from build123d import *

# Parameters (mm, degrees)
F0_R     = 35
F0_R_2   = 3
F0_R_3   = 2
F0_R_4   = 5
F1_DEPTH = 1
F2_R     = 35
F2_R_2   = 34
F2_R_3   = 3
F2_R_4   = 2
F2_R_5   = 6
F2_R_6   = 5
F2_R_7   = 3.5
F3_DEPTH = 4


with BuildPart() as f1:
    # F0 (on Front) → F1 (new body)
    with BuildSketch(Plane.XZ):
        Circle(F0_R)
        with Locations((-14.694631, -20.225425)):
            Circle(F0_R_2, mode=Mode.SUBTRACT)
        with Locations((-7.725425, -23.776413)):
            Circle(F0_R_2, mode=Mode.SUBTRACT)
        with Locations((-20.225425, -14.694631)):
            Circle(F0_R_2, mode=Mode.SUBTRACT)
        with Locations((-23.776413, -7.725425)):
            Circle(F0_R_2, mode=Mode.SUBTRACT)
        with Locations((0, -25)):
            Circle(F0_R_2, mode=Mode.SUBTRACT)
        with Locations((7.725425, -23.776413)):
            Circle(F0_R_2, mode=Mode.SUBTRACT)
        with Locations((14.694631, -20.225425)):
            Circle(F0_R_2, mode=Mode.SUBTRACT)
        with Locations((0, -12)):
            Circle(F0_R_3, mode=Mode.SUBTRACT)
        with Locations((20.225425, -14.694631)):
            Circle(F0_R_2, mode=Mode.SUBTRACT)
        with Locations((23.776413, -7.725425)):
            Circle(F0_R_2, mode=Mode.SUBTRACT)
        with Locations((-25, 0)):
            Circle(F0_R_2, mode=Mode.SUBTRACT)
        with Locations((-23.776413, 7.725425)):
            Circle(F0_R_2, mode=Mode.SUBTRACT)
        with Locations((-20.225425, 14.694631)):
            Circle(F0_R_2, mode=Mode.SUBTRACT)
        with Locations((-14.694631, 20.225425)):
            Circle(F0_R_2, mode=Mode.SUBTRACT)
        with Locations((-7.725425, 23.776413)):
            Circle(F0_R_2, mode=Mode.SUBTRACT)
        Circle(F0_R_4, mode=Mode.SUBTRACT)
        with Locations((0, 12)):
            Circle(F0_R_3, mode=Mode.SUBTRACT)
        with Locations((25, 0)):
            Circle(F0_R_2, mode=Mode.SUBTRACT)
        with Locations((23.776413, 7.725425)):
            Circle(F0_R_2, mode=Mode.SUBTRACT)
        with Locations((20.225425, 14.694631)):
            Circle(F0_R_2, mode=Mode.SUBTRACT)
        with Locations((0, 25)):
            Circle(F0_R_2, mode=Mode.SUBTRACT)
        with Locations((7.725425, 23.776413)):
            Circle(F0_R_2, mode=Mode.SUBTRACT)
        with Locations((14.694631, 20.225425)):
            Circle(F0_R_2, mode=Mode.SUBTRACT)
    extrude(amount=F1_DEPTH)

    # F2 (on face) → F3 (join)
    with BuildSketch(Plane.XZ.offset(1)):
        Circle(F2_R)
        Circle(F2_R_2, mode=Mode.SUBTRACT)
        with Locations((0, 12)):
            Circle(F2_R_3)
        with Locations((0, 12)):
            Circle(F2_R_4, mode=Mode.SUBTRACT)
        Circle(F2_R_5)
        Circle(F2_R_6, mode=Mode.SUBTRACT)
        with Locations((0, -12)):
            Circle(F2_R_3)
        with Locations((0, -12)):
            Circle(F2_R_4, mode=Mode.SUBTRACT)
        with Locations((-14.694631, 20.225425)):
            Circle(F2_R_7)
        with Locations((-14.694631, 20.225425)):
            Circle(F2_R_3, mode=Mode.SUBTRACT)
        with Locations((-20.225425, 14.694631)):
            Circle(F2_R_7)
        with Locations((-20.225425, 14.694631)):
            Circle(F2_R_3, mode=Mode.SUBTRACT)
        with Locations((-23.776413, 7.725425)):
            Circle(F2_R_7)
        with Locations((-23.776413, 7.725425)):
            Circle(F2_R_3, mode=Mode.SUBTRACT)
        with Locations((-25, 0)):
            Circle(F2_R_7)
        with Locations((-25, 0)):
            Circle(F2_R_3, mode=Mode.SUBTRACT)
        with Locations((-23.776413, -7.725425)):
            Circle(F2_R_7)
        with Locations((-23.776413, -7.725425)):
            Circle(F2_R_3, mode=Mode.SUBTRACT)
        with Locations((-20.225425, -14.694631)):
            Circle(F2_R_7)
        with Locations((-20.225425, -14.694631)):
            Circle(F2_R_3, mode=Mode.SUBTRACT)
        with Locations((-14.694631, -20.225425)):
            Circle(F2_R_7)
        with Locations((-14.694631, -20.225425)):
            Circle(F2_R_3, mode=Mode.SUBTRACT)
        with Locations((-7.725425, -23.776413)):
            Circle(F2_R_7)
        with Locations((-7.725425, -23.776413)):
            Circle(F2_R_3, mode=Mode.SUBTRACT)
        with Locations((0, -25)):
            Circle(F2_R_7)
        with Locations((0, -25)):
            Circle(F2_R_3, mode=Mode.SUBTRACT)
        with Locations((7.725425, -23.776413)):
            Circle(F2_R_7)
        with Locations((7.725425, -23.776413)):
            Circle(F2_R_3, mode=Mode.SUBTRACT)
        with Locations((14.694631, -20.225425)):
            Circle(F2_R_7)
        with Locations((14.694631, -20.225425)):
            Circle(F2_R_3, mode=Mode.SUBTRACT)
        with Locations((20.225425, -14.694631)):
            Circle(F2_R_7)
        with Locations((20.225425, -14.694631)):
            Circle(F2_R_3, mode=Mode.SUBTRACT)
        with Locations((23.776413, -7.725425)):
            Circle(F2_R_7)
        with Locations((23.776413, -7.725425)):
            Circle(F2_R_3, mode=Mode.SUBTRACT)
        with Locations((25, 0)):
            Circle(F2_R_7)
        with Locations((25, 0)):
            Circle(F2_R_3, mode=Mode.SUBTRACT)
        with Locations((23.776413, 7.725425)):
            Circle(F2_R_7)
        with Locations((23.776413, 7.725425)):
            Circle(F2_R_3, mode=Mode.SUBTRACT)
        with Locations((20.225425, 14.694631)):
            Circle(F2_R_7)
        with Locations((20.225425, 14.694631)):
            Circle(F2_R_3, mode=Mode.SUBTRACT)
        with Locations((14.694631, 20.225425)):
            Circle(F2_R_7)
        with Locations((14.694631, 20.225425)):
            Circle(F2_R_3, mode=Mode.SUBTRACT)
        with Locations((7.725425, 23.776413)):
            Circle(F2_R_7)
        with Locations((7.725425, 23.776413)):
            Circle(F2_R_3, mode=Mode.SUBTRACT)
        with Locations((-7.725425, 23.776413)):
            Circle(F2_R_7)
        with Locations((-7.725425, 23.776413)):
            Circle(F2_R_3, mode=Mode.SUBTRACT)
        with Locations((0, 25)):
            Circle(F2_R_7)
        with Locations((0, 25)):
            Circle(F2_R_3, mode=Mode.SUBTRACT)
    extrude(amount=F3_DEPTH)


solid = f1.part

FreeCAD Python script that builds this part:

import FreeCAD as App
import Part
import Sketcher
Q = App.Units.Quantity

doc = App.newDocument("Part")
body = doc.addObject("PartDesign::Body", "Body")

sketch1 = body.newObject("Sketcher::SketchObject", "Sketch")
sketch1.AttachmentSupport = (doc.getObject("XZ_Plane"), [""])
sketch1.MapMode = "FlatFace"
sketch1.addGeometry([
    Part.Circle(App.Vector(0, 0, 0), App.Vector(0, 0, 1), 35),
    Part.Circle(App.Vector(-14.7, -20.2, 0), App.Vector(0, 0, 1), 3),
    Part.Circle(App.Vector(-20.2, -14.7, 0), App.Vector(0, 0, 1), 3),
    Part.Circle(App.Vector(-7.7, -23.8, 0), App.Vector(0, 0, 1), 3),
    Part.Circle(App.Vector(-23.8, -7.7, 0), App.Vector(0, 0, 1), 3),
    Part.Circle(App.Vector(0, -25, 0), App.Vector(0, 0, 1), 3),
    Part.Circle(App.Vector(7.7, -23.8, 0), App.Vector(0, 0, 1), 3),
    Part.Circle(App.Vector(14.7, -20.2, 0), App.Vector(0, 0, 1), 3),
    Part.Circle(App.Vector(20.2, -14.7, 0), App.Vector(0, 0, 1), 3),
    Part.Circle(App.Vector(0, -12, 0), App.Vector(0, 0, 1), 2),
    Part.Circle(App.Vector(23.8, -7.7, 0), App.Vector(0, 0, 1), 3),
    Part.Circle(App.Vector(-25, 0, 0), App.Vector(0, 0, 1), 3),
    Part.Circle(App.Vector(-23.8, 7.7, 0), App.Vector(0, 0, 1), 3),
    Part.Circle(App.Vector(-20.2, 14.7, 0), App.Vector(0, 0, 1), 3),
    Part.Circle(App.Vector(-14.7, 20.2, 0), App.Vector(0, 0, 1), 3),
    Part.Circle(App.Vector(-7.7, 23.8, 0), App.Vector(0, 0, 1), 3),
    Part.Circle(App.Vector(0, 0, 0), App.Vector(0, 0, 1), 5),
    Part.Circle(App.Vector(0, 12, 0), App.Vector(0, 0, 1), 2),
    Part.Circle(App.Vector(25, 0, 0), App.Vector(0, 0, 1), 3),
    Part.Circle(App.Vector(23.8, 7.7, 0), App.Vector(0, 0, 1), 3),
    Part.Circle(App.Vector(0, 25, 0), App.Vector(0, 0, 1), 3),
    Part.Circle(App.Vector(7.7, 23.8, 0), App.Vector(0, 0, 1), 3),
    Part.Circle(App.Vector(20.2, 14.7, 0), App.Vector(0, 0, 1), 3),
    Part.Circle(App.Vector(14.7, 20.2, 0), App.Vector(0, 0, 1), 3),
], False)
sketch1.addConstraint([
    Sketcher.Constraint("Coincident", 0, 3, -1, 1),
    Sketcher.Constraint("Coincident", 16, 3, -1, 1),
    Sketcher.Constraint("Equal", 1, 2),
    Sketcher.Constraint("Equal", 2, 3),
    Sketcher.Constraint("Equal", 3, 4),
    Sketcher.Constraint("Equal", 4, 5),
    Sketcher.Constraint("Equal", 5, 6),
    Sketcher.Constraint("Equal", 6, 7),
    Sketcher.Constraint("Equal", 7, 8),
    Sketcher.Constraint("Equal", 8, 10),
    Sketcher.Constraint("Equal", 10, 11),
    Sketcher.Constraint("Equal", 11, 12),
    Sketcher.Constraint("Equal", 12, 13),
    Sketcher.Constraint("Equal", 13, 14),
    Sketcher.Constraint("Equal", 14, 15),
    Sketcher.Constraint("Equal", 9, 17),
    Sketcher.Constraint("Equal", 15, 18),
    Sketcher.Constraint("Equal", 18, 19),
    Sketcher.Constraint("Equal", 19, 20),
    Sketcher.Constraint("Equal", 20, 21),
    Sketcher.Constraint("Equal", 21, 22),
    Sketcher.Constraint("Equal", 22, 23),
    Sketcher.Constraint("Symmetric", 10, 3, 12, 3, -1, 1),
    Sketcher.Constraint("Symmetric", 8, 3, 13, 3, -1, 1),
    Sketcher.Constraint("Symmetric", 7, 3, 14, 3, -1, 1),
    Sketcher.Constraint("Symmetric", 6, 3, 15, 3, -1, 1),
    Sketcher.Constraint("Symmetric", 9, 3, 17, 3, -1, 1),
    Sketcher.Constraint("Symmetric", 11, 3, 18, 3, -1, 1),
    Sketcher.Constraint("Symmetric", 4, 3, 19, 3, -1, 1),
    Sketcher.Constraint("Symmetric", 5, 3, 20, 3, -1, 1),
    Sketcher.Constraint("Symmetric", 3, 3, 21, 3, -1, 1),
    Sketcher.Constraint("Symmetric", 2, 3, 22, 3, -1, 1),
    Sketcher.Constraint("Symmetric", 1, 3, 23, 3, -1, 1),
    Sketcher.Constraint("Symmetric", 3, 3, 6, 3, -2),
    Sketcher.Constraint("Symmetric", 1, 3, 7, 3, -2),
    Sketcher.Constraint("Symmetric", 2, 3, 8, 3, -2),
    Sketcher.Constraint("Symmetric", 4, 3, 10, 3, -2),
    Sketcher.Constraint("PointOnObject", 5, 3, -2),
    Sketcher.Constraint("PointOnObject", 9, 3, -2),
    Sketcher.Constraint("PointOnObject", 11, 3, -1),
    Sketcher.Constraint("Diameter", 0, Q("70 mm")),
    Sketcher.Constraint("Diameter", 1, Q("6 mm")),
    Sketcher.Constraint("Diameter", 9, Q("4 mm")),
    Sketcher.Constraint("Diameter", 16, Q("10 mm")),
    Sketcher.Constraint("DistanceY", 5, 3, -1, 1, Q("25 mm")),
    Sketcher.Constraint("DistanceY", 9, 3, -1, 1, Q("12 mm")),
    Sketcher.Constraint("DistanceX", 11, 3, -1, 1, Q("25 mm")),
    Sketcher.Constraint("DistanceX", 2, 3, 3, 3, Q("12.5 mm")),
    Sketcher.Constraint("DistanceY", 1, 3, 4, 3, Q("12.5 mm")),
    Sketcher.Constraint("DistanceX", 1, 3, -1, 1, Q("14.694631 mm")),
    Sketcher.Constraint("DistanceY", 2, 3, -1, 1, Q("14.694631 mm")),
    Sketcher.Constraint("DistanceY", 3, 3, 1, 3, Q("3.550988 mm")),
    Sketcher.Constraint("DistanceX", 4, 3, 2, 3, Q("3.550988 mm")),
    Sketcher.Constraint("DistanceX", 3, 3, 6, 3, Q("15.45085 mm")),
    Sketcher.Constraint("DistanceY", 4, 3, 12, 3, Q("15.45085 mm")),
])
pad1 = body.newObject("PartDesign::Pad", "Pad")
pad1.Profile = sketch1
pad1.Length = 1

sketch2 = body.newObject("Sketcher::SketchObject", "Sketch001")
sketch2.AttachmentSupport = (doc.getObject("XZ_Plane"), [""])
sketch2.MapMode = "FlatFace"
sketch2.AttachmentOffset = App.Placement(App.Vector(0, 0, 1), App.Rotation())
sketch2.addGeometry([
    Part.Circle(App.Vector(0, 0, 0), App.Vector(0, 0, 1), 35),
    Part.Circle(App.Vector(0, 0, 0), App.Vector(0, 0, 1), 34),
    Part.Circle(App.Vector(0, 12, 0), App.Vector(0, 0, 1), 3),
    Part.Circle(App.Vector(0, 12, 0), App.Vector(0, 0, 1), 2),
    Part.Circle(App.Vector(0, 0, 0), App.Vector(0, 0, 1), 6),
    Part.Circle(App.Vector(0, 0, 0), App.Vector(0, 0, 1), 5),
    Part.Circle(App.Vector(0, -12, 0), App.Vector(0, 0, 1), 3),
    Part.Circle(App.Vector(0, -12, 0), App.Vector(0, 0, 1), 2),
    Part.Circle(App.Vector(-14.7, 20.2, 0), App.Vector(0, 0, 1), 3.5),
    Part.Circle(App.Vector(-14.7, 20.2, 0), App.Vector(0, 0, 1), 3),
    Part.Circle(App.Vector(-20.2, 14.7, 0), App.Vector(0, 0, 1), 3.5),
    Part.Circle(App.Vector(-20.2, 14.7, 0), App.Vector(0, 0, 1), 3),
    Part.Circle(App.Vector(-23.8, 7.7, 0), App.Vector(0, 0, 1), 3.5),
    Part.Circle(App.Vector(-23.8, 7.7, 0), App.Vector(0, 0, 1), 3),
    Part.Circle(App.Vector(-25, 0, 0), App.Vector(0, 0, 1), 3.5),
    Part.Circle(App.Vector(-25, 0, 0), App.Vector(0, 0, 1), 3),
    Part.Circle(App.Vector(-23.8, -7.7, 0), App.Vector(0, 0, 1), 3.5),
    Part.Circle(App.Vector(-23.8, -7.7, 0), App.Vector(0, 0, 1), 3),
    Part.Circle(App.Vector(-20.2, -14.7, 0), App.Vector(0, 0, 1), 3.5),
    Part.Circle(App.Vector(-20.2, -14.7, 0), App.Vector(0, 0, 1), 3),
    Part.Circle(App.Vector(-14.7, -20.2, 0), App.Vector(0, 0, 1), 3.5),
    Part.Circle(App.Vector(-14.7, -20.2, 0), App.Vector(0, 0, 1), 3),
    Part.Circle(App.Vector(-7.7, -23.8, 0), App.Vector(0, 0, 1), 3.5),
    Part.Circle(App.Vector(-7.7, -23.8, 0), App.Vector(0, 0, 1), 3),
    Part.Circle(App.Vector(0, -25, 0), App.Vector(0, 0, 1), 3.5),
    Part.Circle(App.Vector(0, -25, 0), App.Vector(0, 0, 1), 3),
    Part.Circle(App.Vector(7.7, -23.8, 0), App.Vector(0, 0, 1), 3.5),
    Part.Circle(App.Vector(7.7, -23.8, 0), App.Vector(0, 0, 1), 3),
    Part.Circle(App.Vector(14.7, -20.2, 0), App.Vector(0, 0, 1), 3.5),
    Part.Circle(App.Vector(14.7, -20.2, 0), App.Vector(0, 0, 1), 3),
    Part.Circle(App.Vector(20.2, -14.7, 0), App.Vector(0, 0, 1), 3.5),
    Part.Circle(App.Vector(20.2, -14.7, 0), App.Vector(0, 0, 1), 3),
    Part.Circle(App.Vector(23.8, -7.7, 0), App.Vector(0, 0, 1), 3.5),
    Part.Circle(App.Vector(23.8, -7.7, 0), App.Vector(0, 0, 1), 3),
    Part.Circle(App.Vector(25, 0, 0), App.Vector(0, 0, 1), 3.5),
    Part.Circle(App.Vector(25, 0, 0), App.Vector(0, 0, 1), 3),
    Part.Circle(App.Vector(23.8, 7.7, 0), App.Vector(0, 0, 1), 3.5),
    Part.Circle(App.Vector(23.8, 7.7, 0), App.Vector(0, 0, 1), 3),
    Part.Circle(App.Vector(20.2, 14.7, 0), App.Vector(0, 0, 1), 3.5),
    Part.Circle(App.Vector(20.2, 14.7, 0), App.Vector(0, 0, 1), 3),
    Part.Circle(App.Vector(14.7, 20.2, 0), App.Vector(0, 0, 1), 3.5),
    Part.Circle(App.Vector(14.7, 20.2, 0), App.Vector(0, 0, 1), 3),
    Part.Circle(App.Vector(7.7, 23.8, 0), App.Vector(0, 0, 1), 3.5),
    Part.Circle(App.Vector(7.7, 23.8, 0), App.Vector(0, 0, 1), 3),
    Part.Circle(App.Vector(-7.7, 23.8, 0), App.Vector(0, 0, 1), 3.5),
    Part.Circle(App.Vector(-7.7, 23.8, 0), App.Vector(0, 0, 1), 3),
    Part.Circle(App.Vector(0, 25, 0), App.Vector(0, 0, 1), 3.5),
    Part.Circle(App.Vector(0, 25, 0), App.Vector(0, 0, 1), 3),
], False)
sketch2.addConstraint([
    Sketcher.Constraint("Coincident", 0, 3, -1, 1),
    Sketcher.Constraint("Coincident", 1, 3, -1, 1),
    Sketcher.Constraint("Coincident", 4, 3, -1, 1),
    Sketcher.Constraint("Coincident", 5, 3, -1, 1),
    Sketcher.Constraint("Coincident", 3, 3, 2, 3),
    Sketcher.Constraint("Coincident", 7, 3, 6, 3),
    Sketcher.Constraint("Coincident", 9, 3, 8, 3),
    Sketcher.Constraint("Coincident", 11, 3, 10, 3),
    Sketcher.Constraint("Coincident", 13, 3, 12, 3),
    Sketcher.Constraint("Coincident", 15, 3, 14, 3),
    Sketcher.Constraint("Coincident", 17, 3, 16, 3),
    Sketcher.Constraint("Coincident", 19, 3, 18, 3),
    Sketcher.Constraint("Coincident", 21, 3, 20, 3),
    Sketcher.Constraint("Coincident", 23, 3, 22, 3),
    Sketcher.Constraint("Coincident", 25, 3, 24, 3),
    Sketcher.Constraint("Coincident", 27, 3, 26, 3),
    Sketcher.Constraint("Coincident", 29, 3, 28, 3),
    Sketcher.Constraint("Coincident", 31, 3, 30, 3),
    Sketcher.Constraint("Coincident", 33, 3, 32, 3),
    Sketcher.Constraint("Coincident", 35, 3, 34, 3),
    Sketcher.Constraint("Coincident", 37, 3, 36, 3),
    Sketcher.Constraint("Coincident", 39, 3, 38, 3),
    Sketcher.Constraint("Coincident", 41, 3, 40, 3),
    Sketcher.Constraint("Coincident", 43, 3, 42, 3),
    Sketcher.Constraint("Coincident", 45, 3, 44, 3),
    Sketcher.Constraint("Coincident", 47, 3, 46, 3),
    Sketcher.Constraint("Equal", 2, 6),
    Sketcher.Constraint("Equal", 3, 7),
    Sketcher.Constraint("Equal", 6, 9),
    Sketcher.Constraint("Equal", 8, 10),
    Sketcher.Constraint("Equal", 9, 11),
    Sketcher.Constraint("Equal", 10, 12),
    Sketcher.Constraint("Equal", 11, 13),
    Sketcher.Constraint("Equal", 12, 14),
    Sketcher.Constraint("Equal", 13, 15),
    Sketcher.Constraint("Equal", 14, 16),
    Sketcher.Constraint("Equal", 15, 17),
    Sketcher.Constraint("Equal", 16, 18),
    Sketcher.Constraint("Equal", 17, 19),
    Sketcher.Constraint("Equal", 18, 20),
    Sketcher.Constraint("Equal", 19, 21),
    Sketcher.Constraint("Equal", 20, 22),
    Sketcher.Constraint("Equal", 21, 23),
    Sketcher.Constraint("Equal", 22, 24),
    Sketcher.Constraint("Equal", 23, 25),
    Sketcher.Constraint("Equal", 24, 26),
    Sketcher.Constraint("Equal", 25, 27),
    Sketcher.Constraint("Equal", 26, 28),
    Sketcher.Constraint("Equal", 27, 29),
    Sketcher.Constraint("Equal", 28, 30),
    Sketcher.Constraint("Equal", 29, 31),
    Sketcher.Constraint("Equal", 30, 32),
    Sketcher.Constraint("Equal", 31, 33),
    Sketcher.Constraint("Equal", 32, 34),
    Sketcher.Constraint("Equal", 33, 35),
    Sketcher.Constraint("Equal", 34, 36),
    Sketcher.Constraint("Equal", 35, 37),
    Sketcher.Constraint("Equal", 36, 38),
    Sketcher.Constraint("Equal", 37, 39),
    Sketcher.Constraint("Equal", 38, 40),
    Sketcher.Constraint("Equal", 39, 41),
    Sketcher.Constraint("Equal", 40, 42),
    Sketcher.Constraint("Equal", 41, 43),
    Sketcher.Constraint("Equal", 42, 44),
    Sketcher.Constraint("Equal", 43, 45),
    Sketcher.Constraint("Equal", 44, 46),
    Sketcher.Constraint("Equal", 45, 47),
    Sketcher.Constraint("Symmetric", 2, 3, 6, 3, -1, 1),
    Sketcher.Constraint("Symmetric", 8, 3, 28, 3, -1, 1),
    Sketcher.Constraint("Symmetric", 10, 3, 30, 3, -1, 1),
    Sketcher.Constraint("Symmetric", 12, 3, 32, 3, -1, 1),
    Sketcher.Constraint("Symmetric", 14, 3, 34, 3, -1, 1),
    Sketcher.Constraint("Symmetric", 16, 3, 36, 3, -1, 1),
    Sketcher.Constraint("Symmetric", 18, 3, 38, 3, -1, 1),
    Sketcher.Constraint("Symmetric", 20, 3, 40, 3, -1, 1),
    Sketcher.Constraint("Symmetric", 22, 3, 42, 3, -1, 1),
    Sketcher.Constraint("Symmetric", 26, 3, 44, 3, -1, 1),
    Sketcher.Constraint("Symmetric", 24, 3, 46, 3, -1, 1),
    Sketcher.Constraint("Symmetric", 22, 3, 26, 3, -2),
    Sketcher.Constraint("Symmetric", 20, 3, 28, 3, -2),
    Sketcher.Constraint("Symmetric", 18, 3, 30, 3, -2),
    Sketcher.Constraint("Symmetric", 16, 3, 32, 3, -2),
    Sketcher.Constraint("PointOnObject", 2, 3, -2),
    Sketcher.Constraint("PointOnObject", 14, 3, -1),
    Sketcher.Constraint("PointOnObject", 24, 3, -2),
    Sketcher.Constraint("Diameter", 0, Q("70 mm")),
    Sketcher.Constraint("Diameter", 1, Q("68 mm")),
    Sketcher.Constraint("Diameter", 2, Q("6 mm")),
    Sketcher.Constraint("Diameter", 3, Q("4 mm")),
    Sketcher.Constraint("Diameter", 4, Q("12 mm")),
    Sketcher.Constraint("Diameter", 5, Q("10 mm")),
    Sketcher.Constraint("Diameter", 8, Q("7 mm")),
    Sketcher.Constraint("DistanceY", -1, 1, 2, 3, Q("12 mm")),
    Sketcher.Constraint("DistanceX", 14, 3, -1, 1, Q("25 mm")),
    Sketcher.Constraint("DistanceY", 24, 3, -1, 1, Q("25 mm")),
    Sketcher.Constraint("DistanceY", 12, 3, 8, 3, Q("12.5 mm")),
    Sketcher.Constraint("DistanceX", 18, 3, 22, 3, Q("12.5 mm")),
    Sketcher.Constraint("DistanceX", 8, 3, -1, 1, Q("14.694631 mm")),
    Sketcher.Constraint("DistanceY", -1, 1, 10, 3, Q("14.694631 mm")),
    Sketcher.Constraint("DistanceX", 12, 3, 10, 3, Q("3.550988 mm")),
    Sketcher.Constraint("DistanceY", 16, 3, 12, 3, Q("15.45085 mm")),
    Sketcher.Constraint("DistanceY", 22, 3, 20, 3, Q("3.550988 mm")),
    Sketcher.Constraint("DistanceX", 22, 3, 26, 3, Q("15.45085 mm")),
])
pad2 = body.newObject("PartDesign::Pad", "Pad001")
pad2.Profile = sketch2
pad2.Length = 4

doc.recompute()
